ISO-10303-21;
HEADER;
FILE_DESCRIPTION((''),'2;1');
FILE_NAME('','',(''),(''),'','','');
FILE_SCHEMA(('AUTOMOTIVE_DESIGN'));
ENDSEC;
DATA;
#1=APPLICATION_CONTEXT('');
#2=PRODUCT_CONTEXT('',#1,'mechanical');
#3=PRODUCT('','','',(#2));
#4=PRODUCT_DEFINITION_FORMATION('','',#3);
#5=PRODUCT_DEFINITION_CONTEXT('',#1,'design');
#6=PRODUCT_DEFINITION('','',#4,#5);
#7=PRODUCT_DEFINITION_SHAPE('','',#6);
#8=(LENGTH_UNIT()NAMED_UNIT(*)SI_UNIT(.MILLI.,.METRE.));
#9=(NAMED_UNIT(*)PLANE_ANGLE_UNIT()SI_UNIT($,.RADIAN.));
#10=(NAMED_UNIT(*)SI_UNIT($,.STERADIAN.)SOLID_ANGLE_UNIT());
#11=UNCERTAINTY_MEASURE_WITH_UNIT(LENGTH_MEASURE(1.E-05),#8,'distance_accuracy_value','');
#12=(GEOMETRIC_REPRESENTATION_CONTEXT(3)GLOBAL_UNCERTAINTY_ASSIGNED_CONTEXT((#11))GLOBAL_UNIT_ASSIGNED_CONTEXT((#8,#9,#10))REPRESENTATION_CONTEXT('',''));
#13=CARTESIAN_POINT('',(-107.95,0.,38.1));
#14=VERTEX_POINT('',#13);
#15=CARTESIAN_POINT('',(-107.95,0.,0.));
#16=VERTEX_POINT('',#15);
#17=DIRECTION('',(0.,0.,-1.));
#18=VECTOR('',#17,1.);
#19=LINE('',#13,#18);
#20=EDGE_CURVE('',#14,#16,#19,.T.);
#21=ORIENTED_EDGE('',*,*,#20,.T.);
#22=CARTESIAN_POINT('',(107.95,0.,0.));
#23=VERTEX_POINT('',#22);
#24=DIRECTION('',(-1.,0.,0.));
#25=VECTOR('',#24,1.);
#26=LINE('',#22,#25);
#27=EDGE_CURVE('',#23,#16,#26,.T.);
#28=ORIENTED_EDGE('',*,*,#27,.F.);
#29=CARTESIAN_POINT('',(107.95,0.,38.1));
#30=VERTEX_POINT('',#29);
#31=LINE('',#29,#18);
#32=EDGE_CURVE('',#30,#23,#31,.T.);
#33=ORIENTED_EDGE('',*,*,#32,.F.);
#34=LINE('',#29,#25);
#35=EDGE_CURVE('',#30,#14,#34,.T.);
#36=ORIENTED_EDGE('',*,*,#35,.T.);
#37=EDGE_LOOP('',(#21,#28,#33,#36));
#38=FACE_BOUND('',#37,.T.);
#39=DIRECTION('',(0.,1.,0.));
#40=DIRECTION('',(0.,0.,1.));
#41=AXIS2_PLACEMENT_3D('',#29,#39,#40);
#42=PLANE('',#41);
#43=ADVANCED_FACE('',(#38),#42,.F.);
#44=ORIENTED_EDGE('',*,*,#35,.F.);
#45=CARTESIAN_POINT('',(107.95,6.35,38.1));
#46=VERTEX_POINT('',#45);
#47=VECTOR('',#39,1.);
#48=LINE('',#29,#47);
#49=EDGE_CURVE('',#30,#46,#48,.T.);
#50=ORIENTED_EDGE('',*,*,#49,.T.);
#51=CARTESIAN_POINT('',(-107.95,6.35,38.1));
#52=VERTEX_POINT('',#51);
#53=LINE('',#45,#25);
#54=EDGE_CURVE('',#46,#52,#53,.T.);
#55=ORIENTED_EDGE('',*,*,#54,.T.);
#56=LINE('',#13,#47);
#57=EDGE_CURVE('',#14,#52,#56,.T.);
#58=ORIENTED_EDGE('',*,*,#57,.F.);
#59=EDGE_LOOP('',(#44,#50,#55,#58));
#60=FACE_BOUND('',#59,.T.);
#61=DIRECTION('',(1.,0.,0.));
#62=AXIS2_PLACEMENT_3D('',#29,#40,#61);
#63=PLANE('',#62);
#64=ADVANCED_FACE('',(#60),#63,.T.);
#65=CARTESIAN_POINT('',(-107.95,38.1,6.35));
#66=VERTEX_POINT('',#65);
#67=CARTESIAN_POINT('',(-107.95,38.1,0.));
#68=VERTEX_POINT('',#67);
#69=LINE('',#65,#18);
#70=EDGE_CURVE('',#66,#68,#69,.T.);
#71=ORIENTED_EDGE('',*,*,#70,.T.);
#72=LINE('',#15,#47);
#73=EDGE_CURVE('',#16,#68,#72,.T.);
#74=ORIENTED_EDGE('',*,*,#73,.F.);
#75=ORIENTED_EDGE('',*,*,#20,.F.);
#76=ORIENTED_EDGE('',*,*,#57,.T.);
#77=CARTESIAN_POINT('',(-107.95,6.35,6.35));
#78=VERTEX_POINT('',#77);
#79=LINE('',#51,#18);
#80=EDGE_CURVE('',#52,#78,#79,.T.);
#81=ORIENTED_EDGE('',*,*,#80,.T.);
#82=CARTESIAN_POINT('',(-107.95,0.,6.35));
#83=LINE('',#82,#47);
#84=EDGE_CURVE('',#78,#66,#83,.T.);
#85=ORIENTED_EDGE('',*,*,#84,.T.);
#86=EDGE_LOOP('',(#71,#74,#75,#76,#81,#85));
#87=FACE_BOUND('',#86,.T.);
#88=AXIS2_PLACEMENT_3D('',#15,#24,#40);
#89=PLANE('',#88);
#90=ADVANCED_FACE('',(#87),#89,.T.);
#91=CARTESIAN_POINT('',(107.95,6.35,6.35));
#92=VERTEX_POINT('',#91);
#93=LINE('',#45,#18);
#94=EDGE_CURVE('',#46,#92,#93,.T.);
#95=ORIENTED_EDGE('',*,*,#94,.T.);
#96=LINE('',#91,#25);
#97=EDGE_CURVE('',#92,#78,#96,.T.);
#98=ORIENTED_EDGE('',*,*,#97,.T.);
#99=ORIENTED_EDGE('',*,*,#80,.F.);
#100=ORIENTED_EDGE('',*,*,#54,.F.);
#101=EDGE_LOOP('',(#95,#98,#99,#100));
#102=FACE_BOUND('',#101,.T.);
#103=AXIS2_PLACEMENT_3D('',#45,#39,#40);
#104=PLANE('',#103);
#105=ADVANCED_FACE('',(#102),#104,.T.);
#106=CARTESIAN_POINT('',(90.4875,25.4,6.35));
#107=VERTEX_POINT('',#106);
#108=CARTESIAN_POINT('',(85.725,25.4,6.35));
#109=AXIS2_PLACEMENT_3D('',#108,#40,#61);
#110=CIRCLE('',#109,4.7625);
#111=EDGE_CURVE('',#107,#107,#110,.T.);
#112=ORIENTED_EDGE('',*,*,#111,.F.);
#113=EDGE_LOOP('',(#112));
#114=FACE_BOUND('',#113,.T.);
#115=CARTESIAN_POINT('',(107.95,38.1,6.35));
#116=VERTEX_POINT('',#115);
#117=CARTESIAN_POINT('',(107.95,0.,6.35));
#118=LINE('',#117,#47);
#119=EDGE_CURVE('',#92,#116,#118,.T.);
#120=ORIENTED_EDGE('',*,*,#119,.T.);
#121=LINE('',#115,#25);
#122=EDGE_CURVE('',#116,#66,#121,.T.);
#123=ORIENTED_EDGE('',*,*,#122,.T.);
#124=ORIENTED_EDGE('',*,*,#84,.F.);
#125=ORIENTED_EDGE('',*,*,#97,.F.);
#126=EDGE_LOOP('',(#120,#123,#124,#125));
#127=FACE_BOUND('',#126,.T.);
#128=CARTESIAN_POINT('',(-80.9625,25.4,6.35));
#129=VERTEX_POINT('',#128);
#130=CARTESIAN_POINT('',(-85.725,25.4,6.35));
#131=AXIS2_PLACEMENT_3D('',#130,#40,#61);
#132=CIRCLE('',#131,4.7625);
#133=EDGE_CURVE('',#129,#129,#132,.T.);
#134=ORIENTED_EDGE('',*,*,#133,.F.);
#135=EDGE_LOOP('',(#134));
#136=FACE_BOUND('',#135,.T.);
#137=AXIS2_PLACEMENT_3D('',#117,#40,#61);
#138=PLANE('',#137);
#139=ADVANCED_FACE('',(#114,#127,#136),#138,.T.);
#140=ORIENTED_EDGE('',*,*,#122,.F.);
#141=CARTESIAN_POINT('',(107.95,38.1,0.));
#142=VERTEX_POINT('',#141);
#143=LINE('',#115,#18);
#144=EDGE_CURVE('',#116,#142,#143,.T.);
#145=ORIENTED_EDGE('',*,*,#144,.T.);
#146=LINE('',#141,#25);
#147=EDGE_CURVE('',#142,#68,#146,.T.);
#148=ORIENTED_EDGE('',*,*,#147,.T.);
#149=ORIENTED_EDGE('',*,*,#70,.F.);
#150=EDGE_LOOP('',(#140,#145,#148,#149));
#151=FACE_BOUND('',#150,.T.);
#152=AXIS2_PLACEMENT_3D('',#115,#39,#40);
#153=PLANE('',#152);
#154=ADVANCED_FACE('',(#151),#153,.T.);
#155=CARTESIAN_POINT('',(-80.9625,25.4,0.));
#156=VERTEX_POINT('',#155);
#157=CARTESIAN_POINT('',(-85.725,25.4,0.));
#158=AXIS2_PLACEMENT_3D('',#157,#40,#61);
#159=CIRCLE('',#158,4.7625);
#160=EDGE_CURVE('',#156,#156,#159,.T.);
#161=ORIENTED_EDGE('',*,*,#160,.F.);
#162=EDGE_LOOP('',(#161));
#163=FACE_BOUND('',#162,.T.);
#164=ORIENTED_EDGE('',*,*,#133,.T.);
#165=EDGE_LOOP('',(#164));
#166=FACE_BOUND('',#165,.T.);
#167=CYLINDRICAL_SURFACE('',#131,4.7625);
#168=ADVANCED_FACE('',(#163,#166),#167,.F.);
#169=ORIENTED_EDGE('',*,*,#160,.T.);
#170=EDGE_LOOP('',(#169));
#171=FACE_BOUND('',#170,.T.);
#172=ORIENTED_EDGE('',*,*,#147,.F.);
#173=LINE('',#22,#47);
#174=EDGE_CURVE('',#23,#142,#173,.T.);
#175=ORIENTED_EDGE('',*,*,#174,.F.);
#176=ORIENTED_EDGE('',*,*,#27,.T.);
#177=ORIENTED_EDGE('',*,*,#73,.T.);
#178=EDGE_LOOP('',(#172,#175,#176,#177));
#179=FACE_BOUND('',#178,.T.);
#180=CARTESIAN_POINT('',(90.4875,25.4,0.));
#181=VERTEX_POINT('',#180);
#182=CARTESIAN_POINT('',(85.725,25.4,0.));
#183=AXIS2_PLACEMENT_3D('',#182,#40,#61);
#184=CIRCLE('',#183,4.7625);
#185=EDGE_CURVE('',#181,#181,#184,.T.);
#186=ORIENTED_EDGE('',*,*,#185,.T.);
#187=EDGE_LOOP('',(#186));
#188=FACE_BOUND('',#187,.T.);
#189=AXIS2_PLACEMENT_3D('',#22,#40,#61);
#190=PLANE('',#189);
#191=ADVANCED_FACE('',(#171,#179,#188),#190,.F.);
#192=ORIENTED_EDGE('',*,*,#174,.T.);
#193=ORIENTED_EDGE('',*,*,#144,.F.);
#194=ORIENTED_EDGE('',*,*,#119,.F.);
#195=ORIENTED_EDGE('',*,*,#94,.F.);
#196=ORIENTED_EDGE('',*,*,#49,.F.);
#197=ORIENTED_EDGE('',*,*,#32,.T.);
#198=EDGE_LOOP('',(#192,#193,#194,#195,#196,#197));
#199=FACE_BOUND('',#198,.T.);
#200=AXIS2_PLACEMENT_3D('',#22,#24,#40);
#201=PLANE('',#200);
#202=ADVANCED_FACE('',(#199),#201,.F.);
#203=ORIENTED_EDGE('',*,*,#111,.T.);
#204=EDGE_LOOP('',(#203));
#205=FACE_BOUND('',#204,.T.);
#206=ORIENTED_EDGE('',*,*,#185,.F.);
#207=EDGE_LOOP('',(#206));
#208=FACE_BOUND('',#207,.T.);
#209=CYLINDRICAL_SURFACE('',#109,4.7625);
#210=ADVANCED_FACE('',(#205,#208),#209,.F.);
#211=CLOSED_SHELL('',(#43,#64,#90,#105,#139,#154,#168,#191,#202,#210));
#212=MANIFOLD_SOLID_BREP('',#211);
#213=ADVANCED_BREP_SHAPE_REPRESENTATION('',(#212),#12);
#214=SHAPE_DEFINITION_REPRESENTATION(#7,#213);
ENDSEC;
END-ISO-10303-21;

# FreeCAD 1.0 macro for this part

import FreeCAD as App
import Part
import Sketcher
from FreeCAD import Vector
Q = App.Units.Quantity

doc = App.newDocument("Part")
body = doc.addObject("PartDesign::Body", "Body")

# Sketch on YZ plane
sketch1 = body.newObject("Sketcher::SketchObject", "Sketch")
sketch1.AttachmentSupport = (doc.getObject("YZ_Plane"), [""])
sketch1.MapMode = "FlatFace"
sketch1.addGeometry([
    Part.LineSegment(Vector(0, 38, 0), Vector(0, 0, 0)),  # 0
    Part.LineSegment(Vector(0, 0, 0), Vector(38, 0, 0)),  # 1
    Part.LineSegment(Vector(38, 0, 0), Vector(38, 6, 0)),  # 2
    Part.LineSegment(Vector(38, 6, 0), Vector(6, 6, 0)),  # 3
    Part.LineSegment(Vector(6, 6, 0), Vector(6, 38, 0)),  # 4
    Part.LineSegment(Vector(6, 38, 0), Vector(0, 38, 0)),  # 5
], False)
sketch1.addConstraint([
    Sketcher.Constraint("Coincident", 0, 2, 1, 1),
    Sketcher.Constraint("Coincident", 1, 2, 2, 1),
    Sketcher.Constraint("Coincident", 2, 2, 3, 1),
    Sketcher.Constraint("Coincident", 3, 2, 4, 1),
    Sketcher.Constraint("Coincident", 4, 2, 5, 1),
    Sketcher.Constraint("Coincident", 5, 2, 0, 1),
    Sketcher.Constraint("Vertical", 0),
    Sketcher.Constraint("Horizontal", 1),
    Sketcher.Constraint("Vertical", 2),
    Sketcher.Constraint("Horizontal", 3),
    Sketcher.Constraint("Vertical", 4),
    Sketcher.Constraint("Horizontal", 5),
    Sketcher.Constraint("Coincident", 0, 2, -1, 1),
    Sketcher.Constraint("Equal", 1, 0),
    Sketcher.Constraint("Equal", 5, 2),
    Sketcher.Constraint("DistanceX", 1, 1, 1, 2, Q("1.5 in")),
    Sketcher.Constraint("DistanceX", 3, 2, 3, 1, Q("1.25 in")),
])
pad1 = body.newObject("PartDesign::Pad", "Pad")
pad1.Profile = sketch1
pad1.Length = Q("8.5 in")
pad1.Midplane = True

# Sketch on XY plane
sketch2 = body.newObject("Sketcher::SketchObject", "Sketch001")
sketch2.AttachmentSupport = (doc.getObject("XY_Plane"), [""])
sketch2.MapMode = "FlatFace"
sketch2.AttachmentOffset = App.Placement(Vector(0, 0, 0.25 * 25.4), App.Rotation())
sketch2.addGeometry([
    Part.Circle(Vector(-85.7, 25.4, 0), Vector(0, 0, 1), 4.8),
    Part.Circle(Vector(85.7, 25.4, 0), Vector(0, 0, 1), 4.8),
], False)
sketch2.addConstraint([
    Sketcher.Constraint("Equal", 0, 1),
    Sketcher.Constraint("Symmetric", 0, 3, 1, 3, -2),
    Sketcher.Constraint("Diameter", 0, Q("0.375 in")),
    Sketcher.Constraint("DistanceY", -1, 1, 0, 3, Q("1 in")),
    Sketcher.Constraint("DistanceX", 0, 3, 1, 3, Q("6.75 in")),
])
doc.recompute()
hole = body.newObject("PartDesign::Hole", "Hole")
hole.Profile = sketch2
hole.ThreadType = "None"
hole.Diameter = Q("0.375 in")
hole.DepthType = "ThroughAll"

doc.recompute()
